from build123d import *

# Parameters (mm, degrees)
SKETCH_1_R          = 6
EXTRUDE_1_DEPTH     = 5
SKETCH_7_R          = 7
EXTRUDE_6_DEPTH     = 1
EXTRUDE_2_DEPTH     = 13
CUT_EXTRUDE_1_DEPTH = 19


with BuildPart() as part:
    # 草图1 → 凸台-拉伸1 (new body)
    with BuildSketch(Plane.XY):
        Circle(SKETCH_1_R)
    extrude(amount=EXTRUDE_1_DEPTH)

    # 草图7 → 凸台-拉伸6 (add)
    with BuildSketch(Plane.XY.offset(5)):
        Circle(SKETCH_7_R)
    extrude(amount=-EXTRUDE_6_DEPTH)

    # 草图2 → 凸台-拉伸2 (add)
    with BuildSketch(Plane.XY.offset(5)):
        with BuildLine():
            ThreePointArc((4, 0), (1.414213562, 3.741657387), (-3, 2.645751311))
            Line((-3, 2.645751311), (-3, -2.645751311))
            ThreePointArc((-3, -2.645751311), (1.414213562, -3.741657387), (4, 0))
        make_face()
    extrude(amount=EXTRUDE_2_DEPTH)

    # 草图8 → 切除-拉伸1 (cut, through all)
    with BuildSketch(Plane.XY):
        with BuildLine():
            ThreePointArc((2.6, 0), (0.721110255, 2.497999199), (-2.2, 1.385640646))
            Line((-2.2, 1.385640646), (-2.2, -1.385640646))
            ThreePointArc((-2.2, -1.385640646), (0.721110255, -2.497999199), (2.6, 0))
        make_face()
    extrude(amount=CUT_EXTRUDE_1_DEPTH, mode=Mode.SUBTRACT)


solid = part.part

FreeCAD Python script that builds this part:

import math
import FreeCAD as App
import Part
import Sketcher
from FreeCAD import Vector
Q = App.Units.Quantity

doc = App.newDocument("Part")
body = doc.addObject("PartDesign::Body", "Body")

# Sketch on XY plane
sketch1 = doc.addObject("Sketcher::SketchObject", "Sketch")
body.addObject(sketch1)
sketch1.AttachmentSupport = (doc.XY_Plane, [""])
sketch1.MapMode = "FlatFace"
sketch1.addGeometry(Part.Circle(Vector(0, 0, 0), Vector(0, 0, 1), 6), False)
sketch1.addConstraint([
    Sketcher.Constraint("Coincident", 0, 3, -1, 1),
    Sketcher.Constraint("Diameter", 0, Q("12 mm")),
])
pad1 = doc.addObject("PartDesign::Pad", "Pad")
body.addObject(pad1)
pad1.Profile = sketch1
pad1.Length = 5

# Sketch on XY plane
sketch2 = doc.addObject("Sketcher::SketchObject", "Sketch001")
body.addObject(sketch2)
sketch2.AttachmentSupport = (doc.XY_Plane, [""])
sketch2.MapMode = "FlatFace"
sketch2.AttachmentOffset = App.Placement(Vector(0, 0, 5), App.Rotation())
sketch2.addGeometry(Part.Circle(Vector(0, 0, 0), Vector(0, 0, 1), 7), False)
sketch2.addConstraint([
    Sketcher.Constraint("Coincident", 0, 3, -1, 1),
    Sketcher.Constraint("Diameter", 0, Q("14 mm")),
])
pad2 = doc.addObject("PartDesign::Pad", "Pad001")
body.addObject(pad2)
pad2.Profile = sketch2
pad2.Length = 1
pad2.Reversed = True

# Sketch on XY plane
sketch3 = doc.addObject("Sketcher::SketchObject", "Sketch002")
body.addObject(sketch3)
sketch3.AttachmentSupport = (doc.XY_Plane, [""])
sketch3.MapMode = "FlatFace"
sketch3.AttachmentOffset = App.Placement(Vector(0, 0, 5), App.Rotation())
sketch3.addGeometry([
    Part.ArcOfCircle(Part.Circle(Vector(0, 0, 0), Vector(0, 0, 1), 4), math.radians(0), math.radians(139)),
    Part.LineSegment(Vector(-3, 2.6, 0), Vector(-3, -2.6, 0)),
    Part.ArcOfCircle(Part.Circle(Vector(0, 0, 0), Vector(0, 0, 1), 4), math.radians(-139), math.radians(0)),
], False)
sketch3.addConstraint([
    Sketcher.Constraint("Coincident", 0, 2, 1, 1),
    Sketcher.Constraint("Coincident", 1, 2, 2, 1),
    Sketcher.Constraint("Tangent", 2, 2, 0, 1),
    Sketcher.Constraint("Vertical", 1),
    Sketcher.Constraint("Coincident", 0, 3, -1, 1),
    Sketcher.Constraint("Equal", 0, 2),
    Sketcher.Constraint("PointOnObject", 2, 2, -1),
    Sketcher.Constraint("Radius", 0, Q("4 mm")),
    Sketcher.Constraint("DistanceX", 0, 2, -1, 1, Q("3 mm")),
])
pad3 = doc.addObject("PartDesign::Pad", "Pad002")
body.addObject(pad3)
pad3.Profile = sketch3
pad3.Length = 13

# Sketch on XY plane
sketch4 = doc.addObject("Sketcher::SketchObject", "Sketch003")
body.addObject(sketch4)
sketch4.AttachmentSupport = (doc.XY_Plane, [""])
sketch4.MapMode = "FlatFace"
sketch4.addGeometry([
    Part.ArcOfCircle(Part.Circle(Vector(0, 0, 0), Vector(0, 0, 1), 2.6), math.radians(0), math.radians(148)),
    Part.LineSegment(Vector(-2.2, 1.4, 0), Vector(-2.2, -1.4, 0)),
    Part.ArcOfCircle(Part.Circle(Vector(0, 0, 0), Vector(0, 0, 1), 2.6), math.radians(-148), math.radians(0)),
], False)
sketch4.addConstraint([
    Sketcher.Constraint("Coincident", 0, 2, 1, 1),
    Sketcher.Constraint("Coincident", 1, 2, 2, 1),
    Sketcher.Constraint("Tangent", 2, 2, 0, 1),
    Sketcher.Constraint("Vertical", 1),
    Sketcher.Constraint("Coincident", 0, 3, -1, 1),
    Sketcher.Constraint("Equal", 0, 2),
    Sketcher.Constraint("PointOnObject", 2, 2, -1),
    Sketcher.Constraint("Radius", 0, Q("2.6 mm")),
    Sketcher.Constraint("DistanceX", 0, 2, -1, 1, Q("2.2 mm")),
])
pocket1 = doc.addObject("PartDesign::Pocket", "Pocket")
body.addObject(pocket1)
pocket1.Profile = sketch4
pocket1.Type = "ThroughAll"
pocket1.Reversed = True

doc.recompute()
